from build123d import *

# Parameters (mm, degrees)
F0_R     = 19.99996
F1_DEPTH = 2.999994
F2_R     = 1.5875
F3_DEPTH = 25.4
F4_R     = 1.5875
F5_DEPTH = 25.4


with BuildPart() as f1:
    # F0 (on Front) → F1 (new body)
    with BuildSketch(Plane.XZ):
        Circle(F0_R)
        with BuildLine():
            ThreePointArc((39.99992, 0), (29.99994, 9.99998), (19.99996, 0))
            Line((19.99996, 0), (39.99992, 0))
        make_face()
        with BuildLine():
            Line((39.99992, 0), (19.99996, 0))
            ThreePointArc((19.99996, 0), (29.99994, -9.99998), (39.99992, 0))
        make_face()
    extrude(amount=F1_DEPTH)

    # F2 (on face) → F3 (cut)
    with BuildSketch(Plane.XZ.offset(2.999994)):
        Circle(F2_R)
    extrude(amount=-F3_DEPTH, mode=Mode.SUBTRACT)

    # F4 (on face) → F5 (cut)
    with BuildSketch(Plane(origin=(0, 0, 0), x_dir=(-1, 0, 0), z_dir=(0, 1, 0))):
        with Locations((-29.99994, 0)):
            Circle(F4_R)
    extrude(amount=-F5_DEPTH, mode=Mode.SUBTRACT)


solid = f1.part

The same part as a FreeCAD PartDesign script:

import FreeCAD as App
import Part
import Sketcher
Q = App.Units.Quantity

doc = App.newDocument("Part")
params = doc.addObject("Spreadsheet::Sheet", "Params")
for row, (alias, value) in enumerate([
    ("pad1_length", "2.999994 mm"),
    ("sketch2_diameter", "0.125 in"),
    ("pocket1_length", "1 in"),
    ("sketch3_diameter", "0.125 in"),
    ("pocket2_length", "1 in"),
], start=1):
    params.set(f"A{row}", alias)
    params.set(f"B{row}", "=" + value)
    params.setAlias(f"B{row}", alias)

body = doc.addObject("PartDesign::Body", "Body")
body.AllowCompound = True

sketch1 = doc.addObject("Sketcher::SketchObject", "Sketch")
body.addObject(sketch1)
sketch1.AttachmentSupport = (doc.XZ_Plane, [""])
sketch1.MapMode = "FlatFace"
sketch1.addGeometry([
    Part.Circle(App.Vector(0, 0, 0), App.Vector(0, 0, 1), 19.99996),
    Part.Circle(App.Vector(29.99994, 0, 0), App.Vector(0, 0, 1), 9.99998),
], False)
sketch1.addConstraint([
    Sketcher.Constraint("Coincident", 0, 3, -1, 1),
    Sketcher.Constraint("PointOnObject", 1, 3, -1),
    Sketcher.Constraint("Diameter", 0, Q("1.5748 in")),
    Sketcher.Constraint("Diameter", 1, Q("0.7874 in")),
    Sketcher.Constraint("DistanceX", -1, 1, 1, 3, Q("1.1811 in")),
])
pad1 = doc.addObject("PartDesign::Pad", "Pad")
body.addObject(pad1)
pad1.Profile = sketch1
pad1.setExpression("Length", "Params.pad1_length")

sketch2 = doc.addObject("Sketcher::SketchObject", "Sketch001")
body.addObject(sketch2)
sketch2.AttachmentSupport = (doc.XZ_Plane, [""])
sketch2.MapMode = "FlatFace"
sketch2.AttachmentOffset = App.Placement(App.Vector(0, 0, 2.999994), App.Rotation())
sketch2.addGeometry(Part.Circle(App.Vector(0, 0, 0), App.Vector(0, 0, 1), 1.5875), False)
sketch2.addConstraint([
    Sketcher.Constraint("Coincident", 0, 3, -1, 1),
    Sketcher.Constraint("Diameter", 0, Q("0.125 in")),
])
sketch2.setExpression("Constraints[1]", "Params.sketch2_diameter")
pocket1 = doc.addObject("PartDesign::Pocket", "Pocket")
body.addObject(pocket1)
pocket1.Profile = sketch2
pocket1.setExpression("Length", "Params.pocket1_length")

sketch3 = doc.addObject("Sketcher::SketchObject", "Sketch002")
body.addObject(sketch3)
sketch3.AttachmentSupport = (doc.XZ_Plane, [""])
sketch3.MapMode = "FlatFace"
sketch3.addGeometry(Part.Circle(App.Vector(29.99994, 0, 0), App.Vector(0, 0, 1), 1.5875), False)
sketch3.addConstraint([
    Sketcher.Constraint("PointOnObject", 0, 3, -1),
    Sketcher.Constraint("Diameter", 0, Q("0.125 in")),
    Sketcher.Constraint("DistanceX", -1, 1, 0, 3, Q("1.1811 in")),
])
sketch3.setExpression("Constraints[1]", "Params.sketch3_diameter")
pocket2 = doc.addObject("PartDesign::Pocket", "Pocket001")
body.addObject(pocket2)
pocket2.Profile = sketch3
pocket2.setExpression("Length", "Params.pocket2_length")
pocket2.Reversed = True

doc.recompute()
